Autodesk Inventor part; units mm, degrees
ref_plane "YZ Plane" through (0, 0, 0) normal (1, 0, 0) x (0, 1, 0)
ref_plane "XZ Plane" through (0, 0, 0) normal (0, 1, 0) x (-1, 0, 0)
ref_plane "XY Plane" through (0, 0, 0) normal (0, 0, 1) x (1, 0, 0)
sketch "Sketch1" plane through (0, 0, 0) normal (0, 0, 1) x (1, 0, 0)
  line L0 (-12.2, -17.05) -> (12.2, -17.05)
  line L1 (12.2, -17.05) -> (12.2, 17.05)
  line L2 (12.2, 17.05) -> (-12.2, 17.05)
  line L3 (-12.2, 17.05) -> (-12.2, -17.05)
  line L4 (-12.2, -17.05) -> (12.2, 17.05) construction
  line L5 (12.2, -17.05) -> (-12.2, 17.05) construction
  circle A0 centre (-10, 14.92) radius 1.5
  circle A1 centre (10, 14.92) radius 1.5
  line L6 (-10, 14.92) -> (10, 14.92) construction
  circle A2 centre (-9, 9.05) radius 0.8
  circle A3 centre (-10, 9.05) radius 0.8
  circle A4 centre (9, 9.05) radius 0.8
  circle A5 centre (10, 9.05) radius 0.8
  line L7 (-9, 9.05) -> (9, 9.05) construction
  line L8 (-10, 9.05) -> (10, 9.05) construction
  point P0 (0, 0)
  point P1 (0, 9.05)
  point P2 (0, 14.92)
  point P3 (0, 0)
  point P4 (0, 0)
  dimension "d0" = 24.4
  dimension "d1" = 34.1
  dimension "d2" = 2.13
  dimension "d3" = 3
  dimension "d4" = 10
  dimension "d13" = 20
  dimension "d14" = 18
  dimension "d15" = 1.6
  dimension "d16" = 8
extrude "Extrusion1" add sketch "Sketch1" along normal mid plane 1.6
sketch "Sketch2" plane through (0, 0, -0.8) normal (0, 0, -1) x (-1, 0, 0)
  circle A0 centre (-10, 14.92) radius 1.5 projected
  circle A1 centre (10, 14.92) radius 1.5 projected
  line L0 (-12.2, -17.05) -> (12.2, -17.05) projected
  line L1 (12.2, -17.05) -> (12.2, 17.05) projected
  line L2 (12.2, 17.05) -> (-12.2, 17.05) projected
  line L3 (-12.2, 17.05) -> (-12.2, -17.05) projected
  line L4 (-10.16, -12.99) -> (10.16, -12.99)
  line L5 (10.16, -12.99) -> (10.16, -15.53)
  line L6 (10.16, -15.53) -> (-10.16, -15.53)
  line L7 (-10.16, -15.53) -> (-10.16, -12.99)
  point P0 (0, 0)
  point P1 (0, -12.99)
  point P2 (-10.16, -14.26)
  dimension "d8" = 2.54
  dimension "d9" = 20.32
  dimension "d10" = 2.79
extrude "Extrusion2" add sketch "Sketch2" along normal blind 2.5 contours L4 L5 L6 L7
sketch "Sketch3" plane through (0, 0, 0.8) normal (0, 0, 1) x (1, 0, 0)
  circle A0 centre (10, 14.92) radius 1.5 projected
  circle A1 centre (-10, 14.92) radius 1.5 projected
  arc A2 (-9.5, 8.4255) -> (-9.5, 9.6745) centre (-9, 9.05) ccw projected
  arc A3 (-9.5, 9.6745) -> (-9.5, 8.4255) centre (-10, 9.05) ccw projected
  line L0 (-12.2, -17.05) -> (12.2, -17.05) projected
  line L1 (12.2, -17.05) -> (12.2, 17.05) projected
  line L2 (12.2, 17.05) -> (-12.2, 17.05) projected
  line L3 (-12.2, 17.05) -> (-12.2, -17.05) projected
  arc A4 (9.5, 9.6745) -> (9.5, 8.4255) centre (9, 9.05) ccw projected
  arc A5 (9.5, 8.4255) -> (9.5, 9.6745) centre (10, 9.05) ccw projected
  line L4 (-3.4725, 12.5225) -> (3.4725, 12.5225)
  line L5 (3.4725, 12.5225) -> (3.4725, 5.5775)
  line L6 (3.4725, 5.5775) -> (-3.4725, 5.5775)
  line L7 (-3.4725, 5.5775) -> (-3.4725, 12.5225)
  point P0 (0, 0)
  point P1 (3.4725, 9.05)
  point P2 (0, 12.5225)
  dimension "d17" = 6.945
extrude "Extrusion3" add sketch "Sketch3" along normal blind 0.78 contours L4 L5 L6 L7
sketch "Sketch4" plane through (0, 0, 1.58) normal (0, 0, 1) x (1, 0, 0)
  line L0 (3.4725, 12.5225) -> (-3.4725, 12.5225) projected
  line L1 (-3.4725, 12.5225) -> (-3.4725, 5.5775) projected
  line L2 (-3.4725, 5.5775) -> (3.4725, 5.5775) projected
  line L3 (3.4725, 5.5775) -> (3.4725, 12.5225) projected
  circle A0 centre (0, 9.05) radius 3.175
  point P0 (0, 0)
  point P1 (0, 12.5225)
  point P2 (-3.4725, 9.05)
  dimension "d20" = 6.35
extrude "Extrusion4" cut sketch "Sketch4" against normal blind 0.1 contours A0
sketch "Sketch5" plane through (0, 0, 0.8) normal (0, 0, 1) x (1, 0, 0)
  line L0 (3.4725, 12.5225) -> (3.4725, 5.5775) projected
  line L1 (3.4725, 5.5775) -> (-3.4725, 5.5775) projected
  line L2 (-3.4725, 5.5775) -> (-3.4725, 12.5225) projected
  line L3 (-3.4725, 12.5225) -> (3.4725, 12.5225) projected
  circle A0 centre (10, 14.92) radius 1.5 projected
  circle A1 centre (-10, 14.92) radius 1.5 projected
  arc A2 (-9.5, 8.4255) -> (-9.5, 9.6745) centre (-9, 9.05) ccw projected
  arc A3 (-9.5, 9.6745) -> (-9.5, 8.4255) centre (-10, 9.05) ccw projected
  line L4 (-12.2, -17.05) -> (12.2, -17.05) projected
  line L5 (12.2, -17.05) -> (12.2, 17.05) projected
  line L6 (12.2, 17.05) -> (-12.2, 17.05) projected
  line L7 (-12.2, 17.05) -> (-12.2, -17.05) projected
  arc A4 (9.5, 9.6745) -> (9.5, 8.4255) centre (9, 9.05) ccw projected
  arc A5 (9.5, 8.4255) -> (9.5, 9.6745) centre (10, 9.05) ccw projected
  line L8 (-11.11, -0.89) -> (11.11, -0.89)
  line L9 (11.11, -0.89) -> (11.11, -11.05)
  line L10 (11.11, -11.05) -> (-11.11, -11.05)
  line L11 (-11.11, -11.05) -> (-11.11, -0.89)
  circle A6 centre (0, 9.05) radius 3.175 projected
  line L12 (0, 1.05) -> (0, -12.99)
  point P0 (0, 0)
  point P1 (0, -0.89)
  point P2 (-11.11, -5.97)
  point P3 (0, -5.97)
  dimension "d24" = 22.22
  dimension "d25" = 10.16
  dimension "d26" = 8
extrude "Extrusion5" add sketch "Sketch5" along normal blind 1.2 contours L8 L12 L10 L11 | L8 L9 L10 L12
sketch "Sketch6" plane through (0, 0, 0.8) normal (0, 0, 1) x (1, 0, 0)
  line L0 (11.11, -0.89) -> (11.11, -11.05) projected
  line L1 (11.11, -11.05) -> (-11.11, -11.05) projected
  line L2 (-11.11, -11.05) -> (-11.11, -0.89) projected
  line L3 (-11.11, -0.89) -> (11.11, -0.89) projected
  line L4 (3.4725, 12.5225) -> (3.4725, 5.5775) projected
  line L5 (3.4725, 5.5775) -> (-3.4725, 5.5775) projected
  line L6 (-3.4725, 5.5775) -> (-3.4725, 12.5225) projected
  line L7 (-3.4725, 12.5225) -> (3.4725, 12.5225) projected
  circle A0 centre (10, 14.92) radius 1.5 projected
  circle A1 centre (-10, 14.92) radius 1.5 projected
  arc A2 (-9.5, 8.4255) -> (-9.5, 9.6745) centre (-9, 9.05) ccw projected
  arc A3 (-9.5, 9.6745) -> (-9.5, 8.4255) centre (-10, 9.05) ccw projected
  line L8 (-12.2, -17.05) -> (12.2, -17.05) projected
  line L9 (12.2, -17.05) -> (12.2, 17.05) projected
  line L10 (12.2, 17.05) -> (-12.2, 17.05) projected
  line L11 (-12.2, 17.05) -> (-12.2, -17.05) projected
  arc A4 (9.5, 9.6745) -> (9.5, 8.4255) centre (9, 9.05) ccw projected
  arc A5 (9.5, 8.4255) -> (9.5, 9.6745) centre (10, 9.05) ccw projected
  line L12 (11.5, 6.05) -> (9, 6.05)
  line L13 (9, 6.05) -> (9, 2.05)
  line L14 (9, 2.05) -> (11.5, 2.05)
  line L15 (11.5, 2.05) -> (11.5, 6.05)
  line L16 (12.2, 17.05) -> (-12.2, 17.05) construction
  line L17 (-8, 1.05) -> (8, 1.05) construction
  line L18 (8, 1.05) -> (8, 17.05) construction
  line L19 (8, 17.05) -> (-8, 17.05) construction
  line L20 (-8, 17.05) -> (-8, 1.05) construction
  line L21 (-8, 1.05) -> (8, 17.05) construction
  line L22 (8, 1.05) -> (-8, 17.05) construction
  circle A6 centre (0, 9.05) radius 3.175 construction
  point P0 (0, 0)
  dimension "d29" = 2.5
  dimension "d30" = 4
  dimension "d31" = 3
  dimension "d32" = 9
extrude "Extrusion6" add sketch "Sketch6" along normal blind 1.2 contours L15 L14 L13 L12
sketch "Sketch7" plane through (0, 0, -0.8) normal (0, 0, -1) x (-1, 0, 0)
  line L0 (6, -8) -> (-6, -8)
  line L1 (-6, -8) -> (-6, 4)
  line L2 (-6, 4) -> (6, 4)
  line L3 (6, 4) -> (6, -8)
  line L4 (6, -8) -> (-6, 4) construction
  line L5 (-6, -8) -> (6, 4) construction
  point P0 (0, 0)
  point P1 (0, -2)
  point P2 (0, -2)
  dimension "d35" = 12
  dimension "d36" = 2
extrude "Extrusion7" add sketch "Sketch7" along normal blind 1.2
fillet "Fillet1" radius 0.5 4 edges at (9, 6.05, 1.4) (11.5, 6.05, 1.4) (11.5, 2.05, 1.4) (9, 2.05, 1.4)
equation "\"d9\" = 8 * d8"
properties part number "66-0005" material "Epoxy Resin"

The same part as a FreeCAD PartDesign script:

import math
import FreeCAD as App
import Part
import Sketcher

V = App.Vector


def edges_at(feature, points):
    """Names of the edges that pass closest to the given points."""
    edges = feature.Shape.Edges
    near = lambda p: min(range(len(edges)), key=lambda i: edges[i].distToShape(Part.Vertex(*p))[0])
    return sorted({f"Edge{near(p) + 1}" for p in points})


def add_polygon(sketch, points):
    """Adds a closed chain of lines whose ends are joined by coincident constraints."""
    first, n = sketch.GeometryCount, len(points)
    for a, b in zip(points, points[1:] + points[:1]):
        sketch.addGeometry(Part.LineSegment(App.Vector(*a, 0), App.Vector(*b, 0)), False)
    for i in range(n):
        sketch.addConstraint(Sketcher.Constraint("Coincident", first + i, 2, first + (i + 1) % n, 1))

doc = App.newDocument("Part")
body = doc.addObject("PartDesign::Body", "Body")

# Sketch on XY plane
sketch1 = body.newObject("Sketcher::SketchObject", "Sketch")
sketch1.AttachmentSupport = (doc.getObject("XY_Plane"), [""])
sketch1.MapMode = "FlatFace"
add_polygon(sketch1, [(-12.2, 17.1), (-12.2, -17.1), (12.2, -17.1), (12.2, 17.1)])  # lines 0-3
sketch1.addGeometry(Part.ArcOfCircle(Part.Circle(V(-9, 9.1, 0), V(0, 0, 1), 0.8), math.radians(-129), math.radians(129)), False)  # 4
sketch1.addGeometry(Part.ArcOfCircle(Part.Circle(V(-10, 9.1, 0), V(0, 0, 1), 0.8), math.radians(51), math.radians(309)), False)  # 5
sketch1.addGeometry(Part.Circle(V(-10, 14.9, 0), V(0, 0, 1), 1.5), False)  # 6
sketch1.addGeometry(Part.ArcOfCircle(Part.Circle(V(9, 9.1, 0), V(0, 0, 1), 0.8), math.radians(51), math.radians(309)), False)  # 7
sketch1.addGeometry(Part.ArcOfCircle(Part.Circle(V(10, 9.1, 0), V(0, 0, 1), 0.8), math.radians(-129), math.radians(129)), False)  # 8
sketch1.addGeometry(Part.Circle(V(10, 14.9, 0), V(0, 0, 1), 1.5), False)  # 9
sketch1.addConstraint([
    Sketcher.Constraint("Coincident", 4, 1, 5, 2),
    Sketcher.Constraint("Coincident", 5, 1, 4, 2),
    Sketcher.Constraint("Coincident", 7, 1, 8, 2),
    Sketcher.Constraint("Coincident", 8, 1, 7, 2),
    Sketcher.Constraint("Vertical", 0),
    Sketcher.Constraint("Horizontal", 1),
    Sketcher.Constraint("Vertical", 2),
    Sketcher.Constraint("Horizontal", 3),
    Sketcher.Constraint("Equal", 4, 5),
    Sketcher.Constraint("Equal", 5, 7),
    Sketcher.Constraint("Equal", 7, 8),
    Sketcher.Constraint("Equal", 6, 9),
    Sketcher.Constraint("Symmetric", 0, 2, 2, 2, -1, 1),
    Sketcher.Constraint("Symmetric", 4, 3, 7, 3, -2),
    Sketcher.Constraint("Symmetric", 5, 3, 8, 3, -2),
    Sketcher.Constraint("Symmetric", 6, 3, 9, 3, -2),
    Sketcher.Constraint("Horizontal", 4, 3, 5, 3),
    Sketcher.Constraint("Vertical", 5, 3, 6, 3),
    Sketcher.Constraint("Diameter", 6, 3.0),
    Sketcher.Constraint("Radius", 4, 0.8),
    Sketcher.Constraint("DistanceX", 1, 1, 1, 2, 24.4),
    Sketcher.Constraint("DistanceY", 0, 2, 0, 1, 34.1),
    Sketcher.Constraint("DistanceX", 5, 3, -1, 1, 10.0),
    Sketcher.Constraint("DistanceX", 4, 3, 7, 3, 18.0),
    Sketcher.Constraint("DistanceY", 8, 3, 2, 2, 8.0),
    Sketcher.Constraint("DistanceY", 9, 3, 2, 2, 2.13),
])
pad1 = body.newObject("PartDesign::Pad", "Pad")
pad1.Profile = sketch1
pad1.Length = 1.6
pad1.Midplane = True

# Sketch on XY plane
sketch2 = body.newObject("Sketcher::SketchObject", "Sketch001")
sketch2.AttachmentSupport = (doc.getObject("XY_Plane"), [""])
sketch2.MapMode = "FlatFace"
sketch2.AttachmentOffset = App.Placement(V(0, 0, -0.8), App.Rotation())
add_polygon(sketch2, [(-10.2, -13), (10.2, -13), (10.2, -15.5), (-10.2, -15.5)])  # lines 0-3
sketch2.addConstraint([
    Sketcher.Constraint("Horizontal", 0),
    Sketcher.Constraint("Vertical", 1),
    Sketcher.Constraint("Horizontal", 2),
    Sketcher.Constraint("Vertical", 3),
    Sketcher.Constraint("DistanceX", 0, 1, 0, 2, 20.32),
    Sketcher.Constraint("DistanceY", 1, 2, 1, 1, 2.54),
    Sketcher.Constraint("DistanceX", -1, 1, 0, 2, 10.16),
    Sketcher.Constraint("DistanceY", 0, 2, -1, 1, 12.99),
])
pad2 = body.newObject("PartDesign::Pad", "Pad001")
pad2.Profile = sketch2
pad2.Length = 2.5
pad2.Reversed = True

# Sketch on XY plane
sketch3 = body.newObject("Sketcher::SketchObject", "Sketch002")
sketch3.AttachmentSupport = (doc.getObject("XY_Plane"), [""])
sketch3.MapMode = "FlatFace"
sketch3.AttachmentOffset = App.Placement(V(0, 0, 0.8), App.Rotation())
add_polygon(sketch3, [(3, 13), (-3, 13), (-3, 6), (3, 6)])  # lines 0-3
sketch3.addConstraint([
    Sketcher.Constraint("Horizontal", 0),
    Sketcher.Constraint("Vertical", 1),
    Sketcher.Constraint("Horizontal", 2),
    Sketcher.Constraint("Vertical", 3),
    Sketcher.Constraint("Equal", 2, 1),
    Sketcher.Constraint("DistanceX", 0, 2, 0, 1, 6.945),
    Sketcher.Constraint("DistanceX", 0, 2, -1, 1, 3.4725),
    Sketcher.Constraint("DistanceY", -1, 1, 0, 2, 12.5225),
])
pad3 = body.newObject("PartDesign::Pad", "Pad002")
pad3.Profile = sketch3
pad3.Length = 0.78

# Sketch on XY plane
sketch4 = body.newObject("Sketcher::SketchObject", "Sketch003")
sketch4.AttachmentSupport = (doc.getObject("XY_Plane"), [""])
sketch4.MapMode = "FlatFace"
sketch4.AttachmentOffset = App.Placement(V(0, 0, 1.58), App.Rotation())
sketch4.addGeometry(Part.Circle(V(0, 9.1, 0), V(0, 0, 1), 3.2), False)
sketch4.addConstraint([
    Sketcher.Constraint("PointOnObject", 0, 3, -2),
    Sketcher.Constraint("Diameter", 0, 6.35),
    Sketcher.Constraint("DistanceY", -1, 1, 0, 3, 9.05),
])
pocket1 = body.newObject("PartDesign::Pocket", "Pocket")
pocket1.Profile = sketch4
pocket1.Length = 0.1

# Sketch on XY plane
sketch5 = body.newObject("Sketcher::SketchObject", "Sketch004")
sketch5.AttachmentSupport = (doc.getObject("XY_Plane"), [""])
sketch5.MapMode = "FlatFace"
sketch5.AttachmentOffset = App.Placement(V(0, 0, 0.8), App.Rotation())
add_polygon(sketch5, [(-11, -1), (-11, -11), (11, -11), (11, -1)])  # lines 0-3
sketch5.addConstraint([
    Sketcher.Constraint("Vertical", 0),
    Sketcher.Constraint("Horizontal", 1),
    Sketcher.Constraint("Vertical", 2),
    Sketcher.Constraint("Horizontal", 3),
    Sketcher.Constraint("DistanceX", 1, 1, 1, 2, 22.22),
    Sketcher.Constraint("DistanceY", 0, 2, 0, 1, 10.16),
    Sketcher.Constraint("DistanceX", 0, 2, -1, 1, 11.11),
    Sketcher.Constraint("DistanceY", 0, 2, -1, 1, 11.05),
])
pad4 = body.newObject("PartDesign::Pad", "Pad003")
pad4.Profile = sketch5
pad4.Length = 1.2

# Sketch on XY plane
sketch6 = body.newObject("Sketcher::SketchObject", "Sketch005")
sketch6.AttachmentSupport = (doc.getObject("XY_Plane"), [""])
sketch6.MapMode = "FlatFace"
sketch6.AttachmentOffset = App.Placement(V(0, 0, 0.8), App.Rotation())
add_polygon(sketch6, [(11.5, 2), (11.5, 6), (9, 6), (9, 2)])  # lines 0-3
sketch6.addConstraint([
    Sketcher.Constraint("Vertical", 0),
    Sketcher.Constraint("Horizontal", 1),
    Sketcher.Constraint("Vertical", 2),
    Sketcher.Constraint("Horizontal", 3),
    Sketcher.Constraint("DistanceY", 0, 1, 0, 2, 4.0),
    Sketcher.Constraint("DistanceX", 1, 2, 1, 1, 2.5),
    Sketcher.Constraint("DistanceX", -1, 1, 1, 2, 9.0),
    Sketcher.Constraint("DistanceY", -1, 1, 0, 2, 6.05),
])
pad5 = body.newObject("PartDesign::Pad", "Pad004")
pad5.Profile = sketch6
pad5.Length = 1.2

# Sketch on XY plane
sketch7 = body.newObject("Sketcher::SketchObject", "Sketch006")
sketch7.AttachmentSupport = (doc.getObject("XY_Plane"), [""])
sketch7.MapMode = "FlatFace"
sketch7.AttachmentOffset = App.Placement(V(0, 0, -0.8), App.Rotation())
add_polygon(sketch7, [(6, -8), (-6, -8), (-6, 4), (6, 4)])  # lines 0-3
sketch7.addConstraint([
    Sketcher.Constraint("Horizontal", 0),
    Sketcher.Constraint("Vertical", 1),
    Sketcher.Constraint("Horizontal", 2),
    Sketcher.Constraint("Vertical", 3),
    Sketcher.Constraint("Equal", 2, 1),
    Sketcher.Constraint("DistanceX", 0, 2, 0, 1, 12.0),
    Sketcher.Constraint("DistanceX", 0, 2, -1, 1, 6.0),
    Sketcher.Constraint("DistanceY", 0, 2, -1, 1, 8.0),
])
pad6 = body.newObject("PartDesign::Pad", "Pad005")
pad6.Profile = sketch7
pad6.Length = 1.2
pad6.Reversed = True
doc.recompute()

fillet = body.newObject("PartDesign::Fillet", "Fillet")
fillet.Base = (pad6, edges_at(pad6, [
    (9, 6.05, 1.4),
    (11.5, 6.05, 1.4),
    (11.5, 2.05, 1.4),
    (9, 2.05, 1.4),
]))
fillet.Radius = 0.5

doc.recompute()
